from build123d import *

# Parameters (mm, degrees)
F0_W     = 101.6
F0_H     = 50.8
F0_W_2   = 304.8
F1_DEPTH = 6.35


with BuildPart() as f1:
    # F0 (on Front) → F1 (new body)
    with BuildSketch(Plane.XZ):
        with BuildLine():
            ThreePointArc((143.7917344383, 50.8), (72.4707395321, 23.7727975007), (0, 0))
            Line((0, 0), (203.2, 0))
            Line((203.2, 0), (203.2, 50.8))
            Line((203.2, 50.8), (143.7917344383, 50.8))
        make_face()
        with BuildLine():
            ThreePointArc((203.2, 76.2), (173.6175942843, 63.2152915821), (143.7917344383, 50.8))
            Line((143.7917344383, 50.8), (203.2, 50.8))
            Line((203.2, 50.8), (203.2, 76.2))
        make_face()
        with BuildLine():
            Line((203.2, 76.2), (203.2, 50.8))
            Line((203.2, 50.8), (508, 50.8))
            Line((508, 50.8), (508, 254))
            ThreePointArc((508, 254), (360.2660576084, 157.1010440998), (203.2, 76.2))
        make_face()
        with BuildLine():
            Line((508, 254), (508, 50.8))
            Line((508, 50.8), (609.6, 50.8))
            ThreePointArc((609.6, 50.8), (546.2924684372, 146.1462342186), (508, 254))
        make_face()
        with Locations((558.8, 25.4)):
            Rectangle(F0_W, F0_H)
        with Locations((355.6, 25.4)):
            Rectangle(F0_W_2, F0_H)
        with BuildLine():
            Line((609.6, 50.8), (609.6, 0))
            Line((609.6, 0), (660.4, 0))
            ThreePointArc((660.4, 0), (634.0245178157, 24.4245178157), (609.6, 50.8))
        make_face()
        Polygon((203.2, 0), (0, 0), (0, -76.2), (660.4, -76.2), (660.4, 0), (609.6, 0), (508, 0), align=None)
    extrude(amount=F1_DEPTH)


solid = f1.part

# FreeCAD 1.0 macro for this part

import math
import FreeCAD as App
import Part
import Sketcher
Q = App.Units.Quantity

doc = App.newDocument("Part")
body = doc.addObject("PartDesign::Body", "Body")

sketch1 = body.newObject("Sketcher::SketchObject", "Sketch")
sketch1.AttachmentSupport = (doc.getObject("XZ_Plane"), [""])
sketch1.MapMode = "FlatFace"
sketch1.addGeometry(Part.ArcOfCircle(Part.Circle(App.Vector(965, 356, 0), App.Vector(0, 0, 1), 468), math.radians(-139.4), math.radians(-130.6)), False)
sketch1.addGeometry(Part.ArcOfCircle(Part.Circle(App.Vector(965, 356, 0), App.Vector(0, 0, 1), 468), math.radians(-167), math.radians(-139)), False)
sketch1.addGeometry(Part.ArcOfCircle(Part.Circle(App.Vector(-489, 1613, 0), App.Vector(0, 0, 1), 1685), math.radians(-73.14), math.radians(-53.73)), False)
sketch1.addGeometry(Part.LineSegment(App.Vector(0, 0, 0), App.Vector(0, -76, 0)), False)
sketch1.addGeometry(Part.LineSegment(App.Vector(0, -76, 0), App.Vector(660, -76, 0)), False)
sketch1.addGeometry(Part.LineSegment(App.Vector(660, -76, 0), App.Vector(660, 0, 0)), False)
sketch1.addConstraint(Sketcher.Constraint("Tangent", 0, 1, 1, 2))
sketch1.addConstraint(Sketcher.Constraint("Coincident", 1, 1, 2, 2))
sketch1.addConstraint(Sketcher.Constraint("Coincident", 2, 1, 3, 1))
sketch1.addConstraint(Sketcher.Constraint("Coincident", 3, 2, 4, 1))
sketch1.addConstraint(Sketcher.Constraint("Coincident", 4, 2, 5, 1))
sketch1.addConstraint(Sketcher.Constraint("Coincident", 5, 2, 0, 2))
sketch1.addConstraint(Sketcher.Constraint("Vertical", 3))
sketch1.addConstraint(Sketcher.Constraint("Horizontal", 4))
sketch1.addConstraint(Sketcher.Constraint("Vertical", 5))
sketch1.addConstraint(Sketcher.Constraint("Equal", 0, 1))
sketch1.addConstraint(Sketcher.Constraint("PointOnObject", 3, 2, -2))
sketch1.addConstraint(Sketcher.Constraint("PointOnObject", 5, 2, -1))
sketch1.addConstraint(Sketcher.Constraint("Equal", 3, 5))
sketch1.addConstraint(Sketcher.Constraint("DistanceX", 4, 1, 4, 2, Q("26 in")))
sketch1.addConstraint(Sketcher.Constraint("DistanceY", 3, 2, 3, 1, Q("3 in")))
sketch1.addConstraint(Sketcher.Constraint("DistanceX", -1, 1, 0, 3, Q("38 in")))
sketch1.addConstraint(Sketcher.Constraint("DistanceY", -1, 1, 0, 3, Q("14 in")))
sketch1.addConstraint(Sketcher.Constraint("DistanceX", -1, 1, 0, 1, Q("24 in")))
sketch1.addConstraint(Sketcher.Constraint("DistanceY", -1, 1, 2, 3, Q("63.5 in")))
sketch1.addConstraint(Sketcher.Constraint("DistanceX", 2, 3, -1, 1, Q("19.25 in")))
pad1 = body.newObject("PartDesign::Pad", "Pad")
pad1.Profile = sketch1
pad1.Length = Q("0.25 in")

doc.recompute()
